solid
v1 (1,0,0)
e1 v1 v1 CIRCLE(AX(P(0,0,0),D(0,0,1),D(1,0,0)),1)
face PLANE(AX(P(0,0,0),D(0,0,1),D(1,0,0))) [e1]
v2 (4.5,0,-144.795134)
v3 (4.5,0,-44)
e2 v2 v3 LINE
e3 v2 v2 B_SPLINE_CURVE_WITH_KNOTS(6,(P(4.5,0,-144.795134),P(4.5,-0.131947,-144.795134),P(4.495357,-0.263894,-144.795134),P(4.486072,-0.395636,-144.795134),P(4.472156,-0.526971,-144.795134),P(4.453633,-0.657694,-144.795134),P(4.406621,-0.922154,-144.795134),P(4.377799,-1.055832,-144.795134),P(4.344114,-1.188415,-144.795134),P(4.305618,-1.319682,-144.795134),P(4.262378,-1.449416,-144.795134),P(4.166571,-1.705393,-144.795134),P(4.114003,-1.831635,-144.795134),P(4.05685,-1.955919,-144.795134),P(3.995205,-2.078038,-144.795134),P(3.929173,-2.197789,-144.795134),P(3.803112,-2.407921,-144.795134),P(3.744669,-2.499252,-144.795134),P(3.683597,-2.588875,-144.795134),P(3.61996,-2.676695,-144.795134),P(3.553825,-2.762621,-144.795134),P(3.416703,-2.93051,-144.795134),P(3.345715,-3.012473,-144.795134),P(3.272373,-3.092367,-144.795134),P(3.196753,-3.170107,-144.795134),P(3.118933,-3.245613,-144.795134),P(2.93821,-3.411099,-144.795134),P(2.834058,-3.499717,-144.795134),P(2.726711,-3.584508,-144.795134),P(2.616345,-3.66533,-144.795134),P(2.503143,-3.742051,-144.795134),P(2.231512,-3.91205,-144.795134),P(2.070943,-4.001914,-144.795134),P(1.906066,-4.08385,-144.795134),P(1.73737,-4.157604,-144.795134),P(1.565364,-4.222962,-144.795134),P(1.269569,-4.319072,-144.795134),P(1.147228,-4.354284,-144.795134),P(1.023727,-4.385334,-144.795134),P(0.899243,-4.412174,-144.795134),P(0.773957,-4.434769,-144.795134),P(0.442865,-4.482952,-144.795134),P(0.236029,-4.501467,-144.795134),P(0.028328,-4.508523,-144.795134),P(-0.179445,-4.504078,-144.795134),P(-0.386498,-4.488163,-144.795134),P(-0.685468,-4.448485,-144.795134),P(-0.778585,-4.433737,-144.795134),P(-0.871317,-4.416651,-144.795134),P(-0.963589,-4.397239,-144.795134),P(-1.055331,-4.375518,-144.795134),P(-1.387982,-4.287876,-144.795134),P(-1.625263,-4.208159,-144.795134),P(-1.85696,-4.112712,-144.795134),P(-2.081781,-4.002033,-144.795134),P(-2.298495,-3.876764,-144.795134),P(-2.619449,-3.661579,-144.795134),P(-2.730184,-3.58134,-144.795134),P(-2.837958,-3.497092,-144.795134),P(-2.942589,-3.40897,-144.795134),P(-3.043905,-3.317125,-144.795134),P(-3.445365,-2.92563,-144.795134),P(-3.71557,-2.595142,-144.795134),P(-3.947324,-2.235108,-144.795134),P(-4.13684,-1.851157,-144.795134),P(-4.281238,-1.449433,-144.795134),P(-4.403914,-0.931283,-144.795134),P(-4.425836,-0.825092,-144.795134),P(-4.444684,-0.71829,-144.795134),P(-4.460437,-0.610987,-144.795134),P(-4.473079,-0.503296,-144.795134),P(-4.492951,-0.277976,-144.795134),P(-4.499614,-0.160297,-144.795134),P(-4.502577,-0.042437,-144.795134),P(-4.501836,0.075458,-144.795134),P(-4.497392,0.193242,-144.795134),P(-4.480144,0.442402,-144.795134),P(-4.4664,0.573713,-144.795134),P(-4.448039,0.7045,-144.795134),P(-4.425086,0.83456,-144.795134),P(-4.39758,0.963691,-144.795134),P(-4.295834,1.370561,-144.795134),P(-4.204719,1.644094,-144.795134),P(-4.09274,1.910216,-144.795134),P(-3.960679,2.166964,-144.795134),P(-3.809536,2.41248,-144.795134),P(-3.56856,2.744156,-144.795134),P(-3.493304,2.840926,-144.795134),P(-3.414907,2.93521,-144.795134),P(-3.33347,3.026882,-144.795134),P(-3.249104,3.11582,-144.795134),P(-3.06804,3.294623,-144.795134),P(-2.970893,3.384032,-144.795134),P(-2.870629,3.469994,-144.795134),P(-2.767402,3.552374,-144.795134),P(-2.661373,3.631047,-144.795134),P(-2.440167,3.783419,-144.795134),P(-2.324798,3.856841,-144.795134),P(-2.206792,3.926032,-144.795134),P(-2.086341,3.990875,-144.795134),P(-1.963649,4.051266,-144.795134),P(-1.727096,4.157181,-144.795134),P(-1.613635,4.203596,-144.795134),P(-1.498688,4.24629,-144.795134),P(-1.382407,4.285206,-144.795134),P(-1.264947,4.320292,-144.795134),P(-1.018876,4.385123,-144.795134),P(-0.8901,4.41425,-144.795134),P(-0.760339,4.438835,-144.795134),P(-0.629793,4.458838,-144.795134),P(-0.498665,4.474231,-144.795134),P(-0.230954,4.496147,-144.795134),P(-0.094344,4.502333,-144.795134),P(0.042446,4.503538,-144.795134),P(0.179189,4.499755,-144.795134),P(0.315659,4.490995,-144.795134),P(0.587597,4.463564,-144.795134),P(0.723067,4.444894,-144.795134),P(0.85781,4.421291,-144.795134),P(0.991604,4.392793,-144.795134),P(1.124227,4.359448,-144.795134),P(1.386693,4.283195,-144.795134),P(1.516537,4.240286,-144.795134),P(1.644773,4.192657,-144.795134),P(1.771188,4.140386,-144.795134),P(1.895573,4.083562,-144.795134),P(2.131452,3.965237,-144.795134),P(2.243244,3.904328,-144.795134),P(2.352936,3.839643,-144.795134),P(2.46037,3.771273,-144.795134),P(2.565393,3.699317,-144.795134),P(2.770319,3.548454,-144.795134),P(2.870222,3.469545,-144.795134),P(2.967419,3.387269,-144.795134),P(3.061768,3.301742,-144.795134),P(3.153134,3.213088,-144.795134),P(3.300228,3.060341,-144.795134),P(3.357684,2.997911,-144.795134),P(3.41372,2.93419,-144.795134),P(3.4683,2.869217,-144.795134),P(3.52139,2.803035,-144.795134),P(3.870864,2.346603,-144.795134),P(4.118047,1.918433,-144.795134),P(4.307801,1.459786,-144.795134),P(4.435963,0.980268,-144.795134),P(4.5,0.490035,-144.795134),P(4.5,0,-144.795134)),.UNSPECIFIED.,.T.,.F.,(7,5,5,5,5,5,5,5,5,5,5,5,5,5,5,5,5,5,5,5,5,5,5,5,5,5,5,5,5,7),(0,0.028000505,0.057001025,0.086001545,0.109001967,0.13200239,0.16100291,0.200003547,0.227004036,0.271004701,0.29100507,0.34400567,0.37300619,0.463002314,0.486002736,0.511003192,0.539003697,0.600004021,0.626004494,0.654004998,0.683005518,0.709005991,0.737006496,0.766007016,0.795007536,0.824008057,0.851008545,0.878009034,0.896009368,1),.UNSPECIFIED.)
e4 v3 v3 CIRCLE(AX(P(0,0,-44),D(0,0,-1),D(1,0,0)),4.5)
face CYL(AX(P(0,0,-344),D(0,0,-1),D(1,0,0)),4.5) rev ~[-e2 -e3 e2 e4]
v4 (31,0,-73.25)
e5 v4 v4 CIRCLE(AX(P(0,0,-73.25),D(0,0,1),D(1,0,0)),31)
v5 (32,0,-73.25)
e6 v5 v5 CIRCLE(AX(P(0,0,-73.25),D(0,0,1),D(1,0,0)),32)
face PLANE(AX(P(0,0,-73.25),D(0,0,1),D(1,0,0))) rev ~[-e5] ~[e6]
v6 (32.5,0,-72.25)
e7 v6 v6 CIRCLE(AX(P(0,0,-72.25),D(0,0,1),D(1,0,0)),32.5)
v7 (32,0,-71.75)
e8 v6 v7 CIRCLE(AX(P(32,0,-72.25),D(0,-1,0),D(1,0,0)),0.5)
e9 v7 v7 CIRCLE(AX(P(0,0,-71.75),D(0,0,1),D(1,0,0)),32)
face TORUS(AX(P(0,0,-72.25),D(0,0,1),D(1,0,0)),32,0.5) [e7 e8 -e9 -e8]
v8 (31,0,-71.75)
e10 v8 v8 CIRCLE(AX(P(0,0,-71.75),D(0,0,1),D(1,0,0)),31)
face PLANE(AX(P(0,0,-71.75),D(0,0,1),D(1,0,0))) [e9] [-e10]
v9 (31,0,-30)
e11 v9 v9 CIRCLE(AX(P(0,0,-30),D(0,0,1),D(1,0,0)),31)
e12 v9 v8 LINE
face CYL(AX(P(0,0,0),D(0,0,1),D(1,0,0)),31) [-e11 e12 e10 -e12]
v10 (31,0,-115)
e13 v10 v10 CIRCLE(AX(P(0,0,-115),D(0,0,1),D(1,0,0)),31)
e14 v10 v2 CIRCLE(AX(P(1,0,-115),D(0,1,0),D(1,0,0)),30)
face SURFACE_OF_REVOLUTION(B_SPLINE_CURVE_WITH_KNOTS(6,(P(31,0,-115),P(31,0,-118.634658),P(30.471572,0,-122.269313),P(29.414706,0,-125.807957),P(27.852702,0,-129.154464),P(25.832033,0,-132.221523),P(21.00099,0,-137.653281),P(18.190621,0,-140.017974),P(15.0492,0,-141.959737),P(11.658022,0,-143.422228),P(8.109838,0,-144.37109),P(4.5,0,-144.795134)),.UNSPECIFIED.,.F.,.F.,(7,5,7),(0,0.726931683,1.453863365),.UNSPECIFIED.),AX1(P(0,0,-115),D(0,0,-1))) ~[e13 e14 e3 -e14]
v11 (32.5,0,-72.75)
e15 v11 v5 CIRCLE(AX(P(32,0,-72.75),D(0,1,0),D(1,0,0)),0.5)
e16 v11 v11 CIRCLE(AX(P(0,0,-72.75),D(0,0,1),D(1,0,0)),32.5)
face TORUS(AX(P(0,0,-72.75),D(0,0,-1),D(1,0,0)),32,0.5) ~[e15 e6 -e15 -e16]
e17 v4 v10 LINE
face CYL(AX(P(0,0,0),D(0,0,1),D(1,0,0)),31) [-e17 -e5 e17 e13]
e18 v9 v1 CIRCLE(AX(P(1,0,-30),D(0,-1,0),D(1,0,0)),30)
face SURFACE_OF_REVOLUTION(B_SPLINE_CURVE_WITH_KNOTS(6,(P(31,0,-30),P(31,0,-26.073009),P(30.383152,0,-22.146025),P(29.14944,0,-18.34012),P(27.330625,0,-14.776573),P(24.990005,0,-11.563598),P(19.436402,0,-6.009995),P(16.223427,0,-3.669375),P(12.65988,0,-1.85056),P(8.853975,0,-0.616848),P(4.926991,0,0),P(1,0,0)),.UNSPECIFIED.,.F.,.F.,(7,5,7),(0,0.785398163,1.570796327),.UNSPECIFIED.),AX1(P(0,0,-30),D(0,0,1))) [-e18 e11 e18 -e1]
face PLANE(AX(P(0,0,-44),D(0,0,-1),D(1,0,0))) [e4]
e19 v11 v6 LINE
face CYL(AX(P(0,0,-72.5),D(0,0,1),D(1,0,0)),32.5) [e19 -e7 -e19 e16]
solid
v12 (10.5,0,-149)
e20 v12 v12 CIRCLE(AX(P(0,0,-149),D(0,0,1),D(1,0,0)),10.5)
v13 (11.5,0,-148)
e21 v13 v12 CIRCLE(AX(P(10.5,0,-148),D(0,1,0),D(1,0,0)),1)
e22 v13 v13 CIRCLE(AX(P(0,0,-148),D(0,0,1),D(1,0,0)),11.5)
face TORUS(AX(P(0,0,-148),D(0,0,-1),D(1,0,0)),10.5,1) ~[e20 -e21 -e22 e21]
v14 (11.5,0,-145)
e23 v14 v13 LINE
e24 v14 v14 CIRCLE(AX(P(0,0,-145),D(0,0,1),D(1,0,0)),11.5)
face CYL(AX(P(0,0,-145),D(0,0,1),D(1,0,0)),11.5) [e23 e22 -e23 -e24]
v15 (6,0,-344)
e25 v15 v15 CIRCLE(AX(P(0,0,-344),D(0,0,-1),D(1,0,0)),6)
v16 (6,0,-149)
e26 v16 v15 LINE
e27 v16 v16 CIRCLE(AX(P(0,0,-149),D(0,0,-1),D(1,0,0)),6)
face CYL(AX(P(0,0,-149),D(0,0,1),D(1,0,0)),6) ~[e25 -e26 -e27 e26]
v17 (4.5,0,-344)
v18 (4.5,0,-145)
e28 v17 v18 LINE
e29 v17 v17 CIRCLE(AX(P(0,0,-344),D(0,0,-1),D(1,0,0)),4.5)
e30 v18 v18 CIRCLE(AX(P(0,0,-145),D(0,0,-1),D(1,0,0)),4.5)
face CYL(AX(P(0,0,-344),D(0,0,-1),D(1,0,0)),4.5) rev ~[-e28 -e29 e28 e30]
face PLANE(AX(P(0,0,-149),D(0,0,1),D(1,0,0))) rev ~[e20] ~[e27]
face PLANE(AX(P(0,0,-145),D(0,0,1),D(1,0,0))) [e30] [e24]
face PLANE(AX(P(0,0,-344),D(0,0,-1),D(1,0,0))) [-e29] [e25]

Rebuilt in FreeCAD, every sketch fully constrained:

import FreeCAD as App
import Part
import Sketcher
from FreeCAD import Vector
Q = App.Units.Quantity


def edges_at(feature, points):
    """Names of the edges that pass closest to the given points."""
    edges = feature.Shape.Edges
    near = lambda p: min(range(len(edges)), key=lambda i: edges[i].distToShape(Part.Vertex(*p))[0])
    return sorted({f"Edge{near(p) + 1}" for p in points})

doc = App.newDocument("Part")
params = doc.addObject("Spreadsheet::Sheet", "Params")
for row, (alias, value) in enumerate([
    ("sketch1_diameter", "62 mm"),
    ("pad1_length", "145 mm"),
    ("fillet_radius", "30 mm"),
    ("fillet2_radius", "30 mm"),
    ("sketch2_diameter", "65 mm"),
    ("pad2_length", "1.5 mm"),
    ("fillet3_radius", "0.5 mm"),
    ("sketch3_diameter", "23 mm"),
    ("pad3_length", "4 mm"),
    ("fillet4_radius", "1 mm"),
    ("sketch4_diameter", "12 mm"),
    ("pad4_length", "195 mm"),
    ("sketch5_diameter", "9 mm"),
    ("pocket1_length", "300 mm"),
], start=1):
    params.set(f"A{row}", alias)
    params.set(f"B{row}", "=" + value)
    params.setAlias(f"B{row}", alias)

body = doc.addObject("PartDesign::Body", "Body")
body.AllowCompound = True

sketch1 = body.newObject("Sketcher::SketchObject", "Sketch")
sketch1.AttachmentSupport = (doc.getObject("XY_Plane"), [""])
sketch1.MapMode = "FlatFace"
sketch1.addGeometry(Part.Circle(Vector(0, 0, 0), Vector(0, 0, 1), 31), False)
sketch1.addConstraint(Sketcher.Constraint("Coincident", 0, 3, -1, 1))
sketch1.addConstraint(Sketcher.Constraint("Diameter", 0, Q("62 mm")))
sketch1.setExpression("Constraints[1]", "Params.sketch1_diameter")
pad1 = body.newObject("PartDesign::Pad", "Pad")
pad1.Profile = sketch1
pad1.setExpression("Length", "Params.pad1_length")
pad1.Reversed = True
doc.recompute()

fillet = body.newObject("PartDesign::Fillet", "Fillet")
fillet.Base = (pad1, edges_at(pad1, [(-31, 0, 0)]))
fillet.setExpression("Radius", "Params.fillet_radius")
doc.recompute()

fillet2 = body.newObject("PartDesign::Fillet", "Fillet001")
fillet2.Base = (fillet, edges_at(fillet, [(-31, 0, -145)]))
fillet2.setExpression("Radius", "Params.fillet2_radius")

sketch2 = body.newObject("Sketcher::SketchObject", "Sketch001")
sketch2.AttachmentSupport = (doc.getObject("XY_Plane"), [""])
sketch2.MapMode = "FlatFace"
sketch2.AttachmentOffset = App.Placement(Vector(0, 0, -72.5), App.Rotation())
sketch2.addGeometry(Part.Circle(Vector(0, 0, 0), Vector(0, 0, 1), 32), False)
sketch2.addConstraint(Sketcher.Constraint("Coincident", 0, 3, -1, 1))
sketch2.addConstraint(Sketcher.Constraint("Diameter", 0, Q("65 mm")))
sketch2.setExpression("Constraints[1]", "Params.sketch2_diameter")
pad2 = body.newObject("PartDesign::Pad", "Pad001")
pad2.Profile = sketch2
pad2.setExpression("Length", "Params.pad2_length")
pad2.Midplane = True
doc.recompute()

fillet3 = body.newObject("PartDesign::Fillet", "Fillet002")
fillet3.Base = (pad2, edges_at(pad2, [(-32.5, 0, -71.75), (-32.5, 0, -73.25)]))
fillet3.setExpression("Radius", "Params.fillet3_radius")

sketch3 = body.newObject("Sketcher::SketchObject", "Sketch002")
sketch3.AttachmentSupport = (doc.getObject("XY_Plane"), [""])
sketch3.MapMode = "FlatFace"
sketch3.AttachmentOffset = App.Placement(Vector(0, 0, -145), App.Rotation())
sketch3.addGeometry(Part.Circle(Vector(0, 0, 0), Vector(0, 0, 1), 12), False)
sketch3.addConstraint(Sketcher.Constraint("Coincident", 0, 3, -1, 1))
sketch3.addConstraint(Sketcher.Constraint("Diameter", 0, Q("23 mm")))
sketch3.setExpression("Constraints[1]", "Params.sketch3_diameter")
pad3 = body.newObject("PartDesign::Pad", "Pad002")
pad3.Profile = sketch3
pad3.setExpression("Length", "Params.pad3_length")
pad3.Reversed = True
doc.recompute()

fillet4 = body.newObject("PartDesign::Fillet", "Fillet003")
fillet4.Base = (pad3, edges_at(pad3, [(-11.5, 0, -149)]))
fillet4.setExpression("Radius", "Params.fillet4_radius")

sketch4 = body.newObject("Sketcher::SketchObject", "Sketch003")
sketch4.AttachmentSupport = (doc.getObject("XY_Plane"), [""])
sketch4.MapMode = "FlatFace"
sketch4.AttachmentOffset = App.Placement(Vector(0, 0, -149), App.Rotation())
sketch4.addGeometry(Part.Circle(Vector(0, 0, 0), Vector(0, 0, 1), 6), False)
sketch4.addConstraint(Sketcher.Constraint("Coincident", 0, 3, -1, 1))
sketch4.addConstraint(Sketcher.Constraint("Diameter", 0, Q("12 mm")))
sketch4.setExpression("Constraints[1]", "Params.sketch4_diameter")
pad4 = body.newObject("PartDesign::Pad", "Pad003")
pad4.Profile = sketch4
pad4.setExpression("Length", "Params.pad4_length")
pad4.Reversed = True

sketch5 = body.newObject("Sketcher::SketchObject", "Sketch004")
sketch5.AttachmentSupport = (doc.getObject("XY_Plane"), [""])
sketch5.MapMode = "FlatFace"
sketch5.AttachmentOffset = App.Placement(Vector(0, 0, -344), App.Rotation())
sketch5.addGeometry(Part.Circle(Vector(0, 0, 0), Vector(0, 0, 1), 4.5), False)
sketch5.addConstraint(Sketcher.Constraint("Coincident", 0, 3, -1, 1))
sketch5.addConstraint(Sketcher.Constraint("Diameter", 0, Q("9 mm")))
sketch5.setExpression("Constraints[1]", "Params.sketch5_diameter")
pocket1 = body.newObject("PartDesign::Pocket", "Pocket")
pocket1.Profile = sketch5
pocket1.setExpression("Length", "Params.pocket1_length")
pocket1.Reversed = True

doc.recompute()
